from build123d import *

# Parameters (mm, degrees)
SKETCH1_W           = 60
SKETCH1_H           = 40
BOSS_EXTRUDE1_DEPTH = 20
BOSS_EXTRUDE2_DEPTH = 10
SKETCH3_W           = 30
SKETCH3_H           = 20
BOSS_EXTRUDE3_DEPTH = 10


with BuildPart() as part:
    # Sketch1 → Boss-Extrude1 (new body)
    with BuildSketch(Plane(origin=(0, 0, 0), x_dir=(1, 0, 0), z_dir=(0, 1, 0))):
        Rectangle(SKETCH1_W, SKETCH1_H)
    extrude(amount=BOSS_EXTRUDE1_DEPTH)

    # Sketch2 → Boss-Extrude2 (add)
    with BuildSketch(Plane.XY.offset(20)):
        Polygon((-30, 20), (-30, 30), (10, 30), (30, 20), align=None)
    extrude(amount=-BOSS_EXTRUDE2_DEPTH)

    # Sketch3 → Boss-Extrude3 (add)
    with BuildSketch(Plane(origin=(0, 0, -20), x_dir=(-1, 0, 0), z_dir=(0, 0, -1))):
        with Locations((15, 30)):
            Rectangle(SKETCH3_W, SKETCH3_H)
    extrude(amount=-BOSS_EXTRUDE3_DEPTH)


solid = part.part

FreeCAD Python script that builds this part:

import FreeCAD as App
import Part
import Sketcher
Q = App.Units.Quantity

doc = App.newDocument("Part")
body = doc.addObject("PartDesign::Body", "Body")

sketch1 = doc.addObject("Sketcher::SketchObject", "Sketch")
body.addObject(sketch1)
sketch1.AttachmentSupport = (doc.XZ_Plane, [""])
sketch1.MapMode = "FlatFace"
sketch1.addGeometry([
    Part.LineSegment(App.Vector(-30, -20, 0), App.Vector(-30, 20, 0)),
    Part.LineSegment(App.Vector(-30, 20, 0), App.Vector(30, 20, 0)),
    Part.LineSegment(App.Vector(30, 20, 0), App.Vector(30, -20, 0)),
    Part.LineSegment(App.Vector(30, -20, 0), App.Vector(-30, -20, 0)),
], False)
sketch1.addConstraint([
    Sketcher.Constraint("Coincident", 0, 2, 1, 1),
    Sketcher.Constraint("Coincident", 1, 2, 2, 1),
    Sketcher.Constraint("Coincident", 2, 2, 3, 1),
    Sketcher.Constraint("Coincident", 3, 2, 0, 1),
    Sketcher.Constraint("Vertical", 0),
    Sketcher.Constraint("Horizontal", 1),
    Sketcher.Constraint("Vertical", 2),
    Sketcher.Constraint("Horizontal", 3),
    Sketcher.Constraint("Symmetric", 0, 2, 2, 2, -1, 1),
    Sketcher.Constraint("DistanceX", 1, 1, 1, 2, Q("60 mm")),
    Sketcher.Constraint("DistanceY", 0, 1, 0, 2, Q("40 mm")),
])
pad1 = doc.addObject("PartDesign::Pad", "Pad")
body.addObject(pad1)
pad1.Profile = sketch1
pad1.Length = 20
pad1.Reversed = True

sketch2 = doc.addObject("Sketcher::SketchObject", "Sketch001")
body.addObject(sketch2)
sketch2.AttachmentSupport = (doc.XY_Plane, [""])
sketch2.MapMode = "FlatFace"
sketch2.AttachmentOffset = App.Placement(App.Vector(0, 0, 20), App.Rotation())
sketch2.addGeometry([
    Part.LineSegment(App.Vector(-30, 30, 0), App.Vector(-30, 20, 0)),
    Part.LineSegment(App.Vector(-30, 20, 0), App.Vector(30, 20, 0)),
    Part.LineSegment(App.Vector(30, 20, 0), App.Vector(10, 30, 0)),
    Part.LineSegment(App.Vector(10, 30, 0), App.Vector(-30, 30, 0)),
], False)
sketch2.addConstraint([
    Sketcher.Constraint("Coincident", 0, 2, 1, 1),
    Sketcher.Constraint("Coincident", 1, 2, 2, 1),
    Sketcher.Constraint("Coincident", 2, 2, 3, 1),
    Sketcher.Constraint("Coincident", 3, 2, 0, 1),
    Sketcher.Constraint("Vertical", 0),
    Sketcher.Constraint("Horizontal", 1),
    Sketcher.Constraint("Horizontal", 3),
    Sketcher.Constraint("DistanceX", 1, 1, 1, 2, Q("60 mm")),
    Sketcher.Constraint("DistanceX", 3, 2, 3, 1, Q("40 mm")),
    Sketcher.Constraint("DistanceY", 0, 2, 0, 1, Q("10 mm")),
    Sketcher.Constraint("DistanceX", 0, 2, -1, 1, Q("30 mm")),
    Sketcher.Constraint("DistanceY", -1, 1, 0, 2, Q("20 mm")),
])
pad2 = doc.addObject("PartDesign::Pad", "Pad001")
body.addObject(pad2)
pad2.Profile = sketch2
pad2.Length = 10
pad2.Reversed = True

sketch3 = doc.addObject("Sketcher::SketchObject", "Sketch002")
body.addObject(sketch3)
sketch3.AttachmentSupport = (doc.XY_Plane, [""])
sketch3.MapMode = "FlatFace"
sketch3.AttachmentOffset = App.Placement(App.Vector(0, 0, -20), App.Rotation())
sketch3.addGeometry([
    Part.LineSegment(App.Vector(0, 40, 0), App.Vector(0, 20, 0)),
    Part.LineSegment(App.Vector(0, 20, 0), App.Vector(-30, 20, 0)),
    Part.LineSegment(App.Vector(-30, 20, 0), App.Vector(-30, 40, 0)),
    Part.LineSegment(App.Vector(-30, 40, 0), App.Vector(0, 40, 0)),
], False)
sketch3.addConstraint([
    Sketcher.Constraint("Coincident", 0, 2, 1, 1),
    Sketcher.Constraint("Coincident", 1, 2, 2, 1),
    Sketcher.Constraint("Coincident", 2, 2, 3, 1),
    Sketcher.Constraint("Coincident", 3, 2, 0, 1),
    Sketcher.Constraint("Vertical", 0),
    Sketcher.Constraint("Horizontal", 1),
    Sketcher.Constraint("Vertical", 2),
    Sketcher.Constraint("Horizontal", 3),
    Sketcher.Constraint("PointOnObject", 0, 2, -2),
    Sketcher.Constraint("DistanceX", 1, 2, 1, 1, Q("30 mm")),
    Sketcher.Constraint("DistanceY", 0, 2, 0, 1, Q("20 mm")),
    Sketcher.Constraint("DistanceY", -1, 1, 0, 2, Q("20 mm")),
])
pad3 = doc.addObject("PartDesign::Pad", "Pad002")
body.addObject(pad3)
pad3.Profile = sketch3
pad3.Length = 10

doc.recompute()
